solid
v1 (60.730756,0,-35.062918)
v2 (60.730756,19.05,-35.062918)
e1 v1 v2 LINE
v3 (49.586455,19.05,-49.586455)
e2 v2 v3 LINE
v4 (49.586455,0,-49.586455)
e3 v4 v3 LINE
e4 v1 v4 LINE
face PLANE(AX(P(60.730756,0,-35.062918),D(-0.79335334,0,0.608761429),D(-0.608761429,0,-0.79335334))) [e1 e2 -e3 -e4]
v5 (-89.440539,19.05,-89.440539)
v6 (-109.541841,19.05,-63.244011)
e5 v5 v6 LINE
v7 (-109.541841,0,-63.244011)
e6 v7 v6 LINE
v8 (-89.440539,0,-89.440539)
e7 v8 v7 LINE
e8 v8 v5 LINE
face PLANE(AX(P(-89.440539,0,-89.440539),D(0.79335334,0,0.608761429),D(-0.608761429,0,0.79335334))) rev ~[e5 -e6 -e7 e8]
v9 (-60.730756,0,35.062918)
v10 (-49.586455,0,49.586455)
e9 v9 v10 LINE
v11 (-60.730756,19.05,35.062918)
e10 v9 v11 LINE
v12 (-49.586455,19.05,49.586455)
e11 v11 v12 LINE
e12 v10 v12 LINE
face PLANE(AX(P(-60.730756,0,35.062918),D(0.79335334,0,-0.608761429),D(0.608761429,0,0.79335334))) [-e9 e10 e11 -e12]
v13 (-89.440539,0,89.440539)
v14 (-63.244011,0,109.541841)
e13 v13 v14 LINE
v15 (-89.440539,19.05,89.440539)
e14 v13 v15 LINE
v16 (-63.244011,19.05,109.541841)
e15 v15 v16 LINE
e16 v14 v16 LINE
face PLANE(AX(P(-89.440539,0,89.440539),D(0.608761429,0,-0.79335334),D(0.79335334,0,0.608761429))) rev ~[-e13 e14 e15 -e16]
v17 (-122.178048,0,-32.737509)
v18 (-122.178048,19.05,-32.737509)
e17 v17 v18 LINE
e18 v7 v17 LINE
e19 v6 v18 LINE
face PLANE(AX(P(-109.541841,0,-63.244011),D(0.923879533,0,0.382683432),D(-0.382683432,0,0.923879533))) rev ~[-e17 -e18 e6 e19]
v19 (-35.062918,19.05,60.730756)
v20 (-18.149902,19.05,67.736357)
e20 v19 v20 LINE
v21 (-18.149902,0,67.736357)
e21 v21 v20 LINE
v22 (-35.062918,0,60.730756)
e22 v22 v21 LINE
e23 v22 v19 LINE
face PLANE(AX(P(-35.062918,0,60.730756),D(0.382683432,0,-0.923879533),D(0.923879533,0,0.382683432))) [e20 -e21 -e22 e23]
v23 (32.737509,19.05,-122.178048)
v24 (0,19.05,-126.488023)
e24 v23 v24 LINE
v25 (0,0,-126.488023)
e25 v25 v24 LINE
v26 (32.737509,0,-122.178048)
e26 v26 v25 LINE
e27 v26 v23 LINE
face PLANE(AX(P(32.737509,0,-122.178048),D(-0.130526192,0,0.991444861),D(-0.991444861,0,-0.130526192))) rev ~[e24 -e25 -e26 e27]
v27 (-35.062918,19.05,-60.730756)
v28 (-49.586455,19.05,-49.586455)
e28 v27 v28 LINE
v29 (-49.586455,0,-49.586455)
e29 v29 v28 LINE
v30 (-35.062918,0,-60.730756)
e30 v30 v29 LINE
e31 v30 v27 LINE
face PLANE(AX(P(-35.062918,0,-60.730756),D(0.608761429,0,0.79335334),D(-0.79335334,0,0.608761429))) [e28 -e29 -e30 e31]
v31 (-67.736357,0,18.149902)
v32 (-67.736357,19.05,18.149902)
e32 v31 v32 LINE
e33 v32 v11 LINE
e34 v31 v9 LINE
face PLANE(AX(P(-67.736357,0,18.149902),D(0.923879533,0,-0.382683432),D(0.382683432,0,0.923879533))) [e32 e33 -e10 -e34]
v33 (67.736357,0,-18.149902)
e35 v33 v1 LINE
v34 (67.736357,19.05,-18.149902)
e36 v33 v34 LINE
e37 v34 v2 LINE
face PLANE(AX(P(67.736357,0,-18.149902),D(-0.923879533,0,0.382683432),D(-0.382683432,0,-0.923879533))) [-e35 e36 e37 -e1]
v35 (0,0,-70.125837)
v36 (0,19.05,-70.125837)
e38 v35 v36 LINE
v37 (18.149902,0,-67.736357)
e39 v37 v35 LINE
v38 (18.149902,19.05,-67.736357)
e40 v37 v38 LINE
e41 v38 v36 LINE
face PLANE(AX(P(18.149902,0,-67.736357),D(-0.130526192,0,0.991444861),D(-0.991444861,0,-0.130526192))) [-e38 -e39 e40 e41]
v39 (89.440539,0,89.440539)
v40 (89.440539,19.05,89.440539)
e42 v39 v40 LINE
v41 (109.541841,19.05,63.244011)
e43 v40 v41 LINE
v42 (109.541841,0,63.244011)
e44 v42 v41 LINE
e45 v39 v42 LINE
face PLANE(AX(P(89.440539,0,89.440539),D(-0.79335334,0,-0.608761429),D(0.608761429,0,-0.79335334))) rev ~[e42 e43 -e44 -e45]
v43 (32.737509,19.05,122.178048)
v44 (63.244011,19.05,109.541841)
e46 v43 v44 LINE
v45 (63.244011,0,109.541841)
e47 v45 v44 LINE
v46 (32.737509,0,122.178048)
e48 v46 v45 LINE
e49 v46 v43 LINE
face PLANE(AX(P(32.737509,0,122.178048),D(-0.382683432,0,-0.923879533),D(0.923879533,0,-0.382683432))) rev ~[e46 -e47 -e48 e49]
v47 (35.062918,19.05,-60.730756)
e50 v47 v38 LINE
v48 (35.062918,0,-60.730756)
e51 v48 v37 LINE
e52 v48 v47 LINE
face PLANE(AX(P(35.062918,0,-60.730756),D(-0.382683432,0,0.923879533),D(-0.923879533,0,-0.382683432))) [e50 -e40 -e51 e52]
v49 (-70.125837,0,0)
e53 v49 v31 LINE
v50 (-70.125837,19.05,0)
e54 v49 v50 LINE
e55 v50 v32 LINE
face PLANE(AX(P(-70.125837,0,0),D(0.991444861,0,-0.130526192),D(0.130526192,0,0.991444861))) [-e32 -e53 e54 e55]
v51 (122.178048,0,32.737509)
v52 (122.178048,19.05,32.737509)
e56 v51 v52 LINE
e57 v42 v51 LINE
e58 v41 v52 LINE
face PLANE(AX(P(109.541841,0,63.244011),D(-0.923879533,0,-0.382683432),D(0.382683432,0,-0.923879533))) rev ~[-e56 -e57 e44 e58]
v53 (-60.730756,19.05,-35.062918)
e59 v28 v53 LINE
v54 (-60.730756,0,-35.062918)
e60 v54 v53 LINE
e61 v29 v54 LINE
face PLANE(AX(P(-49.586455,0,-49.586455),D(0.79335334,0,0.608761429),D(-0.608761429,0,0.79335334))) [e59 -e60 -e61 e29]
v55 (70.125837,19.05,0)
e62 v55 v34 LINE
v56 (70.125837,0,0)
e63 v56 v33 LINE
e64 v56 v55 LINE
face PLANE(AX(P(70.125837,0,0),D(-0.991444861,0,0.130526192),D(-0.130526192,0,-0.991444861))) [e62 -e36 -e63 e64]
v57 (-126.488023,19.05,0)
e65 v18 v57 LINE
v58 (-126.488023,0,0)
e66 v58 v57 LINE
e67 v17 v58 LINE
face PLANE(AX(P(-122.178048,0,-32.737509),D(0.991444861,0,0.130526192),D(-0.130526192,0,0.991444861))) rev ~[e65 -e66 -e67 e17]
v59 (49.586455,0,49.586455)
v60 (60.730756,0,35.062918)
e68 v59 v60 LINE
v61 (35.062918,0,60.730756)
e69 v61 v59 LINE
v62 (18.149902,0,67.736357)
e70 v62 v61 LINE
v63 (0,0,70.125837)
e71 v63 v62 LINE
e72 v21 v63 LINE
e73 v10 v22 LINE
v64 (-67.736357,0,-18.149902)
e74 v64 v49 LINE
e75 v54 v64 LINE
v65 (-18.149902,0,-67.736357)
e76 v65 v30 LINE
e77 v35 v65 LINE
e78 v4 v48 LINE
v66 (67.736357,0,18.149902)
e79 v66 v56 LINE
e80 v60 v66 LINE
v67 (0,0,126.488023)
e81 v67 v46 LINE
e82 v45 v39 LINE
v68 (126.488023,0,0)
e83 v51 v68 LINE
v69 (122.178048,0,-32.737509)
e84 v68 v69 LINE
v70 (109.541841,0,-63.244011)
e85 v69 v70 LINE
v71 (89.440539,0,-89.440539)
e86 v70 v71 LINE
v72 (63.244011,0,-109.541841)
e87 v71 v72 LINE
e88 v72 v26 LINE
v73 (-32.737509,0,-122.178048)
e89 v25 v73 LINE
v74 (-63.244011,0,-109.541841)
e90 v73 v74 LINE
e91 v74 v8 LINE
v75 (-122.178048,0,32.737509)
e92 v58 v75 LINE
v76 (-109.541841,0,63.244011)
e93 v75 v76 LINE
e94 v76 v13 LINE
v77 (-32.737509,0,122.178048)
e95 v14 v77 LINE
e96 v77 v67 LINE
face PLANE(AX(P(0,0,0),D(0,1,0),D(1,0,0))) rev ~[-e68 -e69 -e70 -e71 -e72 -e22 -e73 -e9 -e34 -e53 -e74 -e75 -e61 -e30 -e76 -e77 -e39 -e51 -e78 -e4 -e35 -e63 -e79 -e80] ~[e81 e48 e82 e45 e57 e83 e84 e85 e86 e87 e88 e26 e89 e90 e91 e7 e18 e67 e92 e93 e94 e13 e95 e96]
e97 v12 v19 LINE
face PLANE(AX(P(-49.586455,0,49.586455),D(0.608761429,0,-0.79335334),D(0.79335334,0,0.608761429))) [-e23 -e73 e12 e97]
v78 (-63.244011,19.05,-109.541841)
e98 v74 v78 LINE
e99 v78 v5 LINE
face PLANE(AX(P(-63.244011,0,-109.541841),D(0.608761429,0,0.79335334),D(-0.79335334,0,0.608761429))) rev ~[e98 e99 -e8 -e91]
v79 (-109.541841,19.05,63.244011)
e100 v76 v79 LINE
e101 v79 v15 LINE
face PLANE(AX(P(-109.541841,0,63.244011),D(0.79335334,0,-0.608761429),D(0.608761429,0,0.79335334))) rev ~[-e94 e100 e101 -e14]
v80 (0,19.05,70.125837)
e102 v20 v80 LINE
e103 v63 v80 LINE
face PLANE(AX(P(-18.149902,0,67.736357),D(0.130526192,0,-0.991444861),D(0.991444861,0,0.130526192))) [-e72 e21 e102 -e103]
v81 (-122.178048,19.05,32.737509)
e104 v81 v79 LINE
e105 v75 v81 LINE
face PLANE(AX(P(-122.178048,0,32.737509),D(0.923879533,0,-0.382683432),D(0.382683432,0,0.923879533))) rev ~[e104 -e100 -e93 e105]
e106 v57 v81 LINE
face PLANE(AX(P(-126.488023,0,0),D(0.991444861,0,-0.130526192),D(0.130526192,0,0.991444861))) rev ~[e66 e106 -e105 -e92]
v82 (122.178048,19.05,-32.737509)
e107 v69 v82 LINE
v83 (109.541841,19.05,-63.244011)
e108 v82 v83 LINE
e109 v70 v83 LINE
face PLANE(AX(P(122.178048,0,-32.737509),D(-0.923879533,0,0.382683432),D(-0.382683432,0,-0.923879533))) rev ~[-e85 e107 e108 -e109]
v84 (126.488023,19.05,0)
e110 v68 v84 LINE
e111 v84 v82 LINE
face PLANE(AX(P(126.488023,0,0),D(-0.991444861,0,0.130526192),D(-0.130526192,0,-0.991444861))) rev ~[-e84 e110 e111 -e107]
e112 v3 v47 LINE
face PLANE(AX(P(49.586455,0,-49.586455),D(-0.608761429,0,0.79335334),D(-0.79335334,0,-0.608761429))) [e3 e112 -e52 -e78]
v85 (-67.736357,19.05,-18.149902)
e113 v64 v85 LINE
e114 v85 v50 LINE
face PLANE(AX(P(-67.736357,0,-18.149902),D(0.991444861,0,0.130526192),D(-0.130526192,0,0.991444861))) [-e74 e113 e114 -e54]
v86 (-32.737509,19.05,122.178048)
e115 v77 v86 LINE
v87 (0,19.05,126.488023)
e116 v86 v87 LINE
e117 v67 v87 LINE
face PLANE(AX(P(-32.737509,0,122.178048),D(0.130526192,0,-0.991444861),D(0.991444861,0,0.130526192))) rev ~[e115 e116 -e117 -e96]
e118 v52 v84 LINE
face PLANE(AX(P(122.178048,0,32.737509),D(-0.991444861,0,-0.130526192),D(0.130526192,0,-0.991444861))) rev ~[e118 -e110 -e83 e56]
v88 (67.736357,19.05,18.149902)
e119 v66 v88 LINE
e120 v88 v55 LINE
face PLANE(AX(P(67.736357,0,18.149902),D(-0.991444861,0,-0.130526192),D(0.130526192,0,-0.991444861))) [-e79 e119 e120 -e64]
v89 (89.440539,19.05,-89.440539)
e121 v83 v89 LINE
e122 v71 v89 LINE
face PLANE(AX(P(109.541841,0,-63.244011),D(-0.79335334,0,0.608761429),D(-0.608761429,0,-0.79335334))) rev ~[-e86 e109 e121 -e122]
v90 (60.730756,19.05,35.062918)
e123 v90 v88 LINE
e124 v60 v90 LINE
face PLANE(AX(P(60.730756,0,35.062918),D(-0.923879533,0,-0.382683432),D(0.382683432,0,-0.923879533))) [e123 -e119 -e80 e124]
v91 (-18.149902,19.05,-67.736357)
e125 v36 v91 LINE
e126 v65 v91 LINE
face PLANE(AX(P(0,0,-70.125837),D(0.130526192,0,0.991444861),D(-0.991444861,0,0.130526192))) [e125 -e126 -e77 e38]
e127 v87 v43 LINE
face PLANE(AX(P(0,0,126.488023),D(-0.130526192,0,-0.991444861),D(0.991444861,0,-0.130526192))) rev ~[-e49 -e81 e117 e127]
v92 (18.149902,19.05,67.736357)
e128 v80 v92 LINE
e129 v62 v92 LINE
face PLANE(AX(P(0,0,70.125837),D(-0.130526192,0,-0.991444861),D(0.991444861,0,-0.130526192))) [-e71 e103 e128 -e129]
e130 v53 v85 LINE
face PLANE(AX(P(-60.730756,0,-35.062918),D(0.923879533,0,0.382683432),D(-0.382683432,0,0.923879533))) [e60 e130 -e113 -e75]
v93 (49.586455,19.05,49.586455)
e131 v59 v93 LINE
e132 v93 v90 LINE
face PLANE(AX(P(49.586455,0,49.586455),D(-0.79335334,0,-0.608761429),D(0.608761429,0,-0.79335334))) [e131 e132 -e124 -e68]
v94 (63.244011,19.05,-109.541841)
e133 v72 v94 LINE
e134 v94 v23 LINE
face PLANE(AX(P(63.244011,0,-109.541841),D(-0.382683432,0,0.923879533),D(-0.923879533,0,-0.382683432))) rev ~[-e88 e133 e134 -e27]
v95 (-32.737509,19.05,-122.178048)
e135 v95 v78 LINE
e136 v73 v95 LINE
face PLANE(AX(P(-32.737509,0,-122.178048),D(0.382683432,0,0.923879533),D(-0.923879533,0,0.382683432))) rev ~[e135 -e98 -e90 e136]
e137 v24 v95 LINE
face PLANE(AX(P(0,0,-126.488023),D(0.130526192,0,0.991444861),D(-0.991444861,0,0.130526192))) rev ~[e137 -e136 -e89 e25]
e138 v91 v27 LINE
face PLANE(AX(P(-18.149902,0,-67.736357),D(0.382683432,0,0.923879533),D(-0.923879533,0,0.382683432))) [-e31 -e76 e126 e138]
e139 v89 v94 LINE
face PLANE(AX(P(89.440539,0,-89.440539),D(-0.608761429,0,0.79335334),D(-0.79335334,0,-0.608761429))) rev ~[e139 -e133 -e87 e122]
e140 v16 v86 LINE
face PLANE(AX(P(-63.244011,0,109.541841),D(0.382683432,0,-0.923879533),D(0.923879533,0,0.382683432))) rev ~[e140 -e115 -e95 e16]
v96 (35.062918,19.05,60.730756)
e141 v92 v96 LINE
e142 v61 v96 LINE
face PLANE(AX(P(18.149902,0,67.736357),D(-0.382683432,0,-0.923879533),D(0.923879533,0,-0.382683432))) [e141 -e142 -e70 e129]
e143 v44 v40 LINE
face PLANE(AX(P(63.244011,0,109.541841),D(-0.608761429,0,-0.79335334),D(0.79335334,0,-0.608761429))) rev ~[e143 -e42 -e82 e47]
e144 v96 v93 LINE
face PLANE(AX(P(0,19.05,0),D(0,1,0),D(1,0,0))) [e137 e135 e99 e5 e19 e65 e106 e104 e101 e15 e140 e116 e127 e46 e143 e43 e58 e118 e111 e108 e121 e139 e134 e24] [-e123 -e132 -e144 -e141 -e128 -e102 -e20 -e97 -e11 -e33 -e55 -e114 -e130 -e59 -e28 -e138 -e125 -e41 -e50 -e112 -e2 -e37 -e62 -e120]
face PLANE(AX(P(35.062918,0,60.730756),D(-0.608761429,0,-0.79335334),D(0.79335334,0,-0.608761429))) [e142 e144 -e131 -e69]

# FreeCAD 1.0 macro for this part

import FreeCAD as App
import Part
import Sketcher

V = App.Vector
Q = App.Units.Quantity


def add_polygon(sketch, points):
    """Adds a closed chain of lines whose ends are joined by coincident constraints."""
    first, n = sketch.GeometryCount, len(points)
    for a, b in zip(points, points[1:] + points[:1]):
        sketch.addGeometry(Part.LineSegment(App.Vector(*a, 0), App.Vector(*b, 0)), False)
    for i in range(n):
        sketch.addConstraint(Sketcher.Constraint("Coincident", first + i, 2, first + (i + 1) % n, 1))

doc = App.newDocument("Part")
body = doc.addObject("PartDesign::Body", "Body")

# Sketch on XZ plane
sketch1 = doc.addObject("Sketcher::SketchObject", "Sketch")
body.addObject(sketch1)
sketch1.AttachmentSupport = (doc.XZ_Plane, [""])
sketch1.MapMode = "FlatFace"
add_polygon(sketch1, [(-126.488023, 0), (-122.178048, 32.737509), (-109.541841, 63.244011), (-89.440539, 89.440539), (-63.244011, 109.541841), (-32.737509, 122.178048), (0, 126.488023), (32.737509, 122.178048), (63.244011, 109.541841), (89.440539, 89.440539), (109.541841, 63.244011), (122.178048, 32.737509), (126.488023, 0), (122.178048, -32.737509), (109.541841, -63.244011), (89.440539, -89.440539), (63.244011, -109.541841), (32.737509, -122.178048), (0, -126.488023), (-32.737509, -122.178048), (-63.244011, -109.541841), (-89.440539, -89.440539), (-109.541841, -63.244011), (-122.178048, -32.737509)])  # lines 0-23
add_polygon(sketch1, [(-67.736357, 18.149902), (-70.125837, 0), (-67.736357, -18.149902), (-60.730756, -35.062918), (-49.586455, -49.586455), (-35.062918, -60.730756), (-18.149902, -67.736357), (0, -70.125837), (18.149902, -67.736357), (35.062918, -60.730756), (49.586455, -49.586455), (60.730756, -35.062918), (67.736357, -18.149902), (70.125837, 0), (67.736357, 18.149902), (60.730756, 35.062918), (49.586455, 49.586455), (35.062918, 60.730756), (18.149902, 67.736357), (0, 70.125837), (-18.149902, 67.736357), (-35.062918, 60.730756), (-49.586455, 49.586455), (-60.730756, 35.062918)])  # lines 24-47
sketch1.addConstraint([
    Sketcher.Constraint("Symmetric", 0, 2, 12, 2, -1, 1),
    Sketcher.Constraint("Symmetric", 1, 2, 13, 2, -1, 1),
    Sketcher.Constraint("Symmetric", 2, 2, 14, 2, -1, 1),
    Sketcher.Constraint("Symmetric", 3, 2, 15, 2, -1, 1),
    Sketcher.Constraint("Symmetric", 4, 2, 16, 2, -1, 1),
    Sketcher.Constraint("Symmetric", 5, 2, 17, 2, -1, 1),
    Sketcher.Constraint("Symmetric", 6, 2, 18, 2, -1, 1),
    Sketcher.Constraint("Symmetric", 7, 2, 19, 2, -1, 1),
    Sketcher.Constraint("Symmetric", 8, 2, 20, 2, -1, 1),
    Sketcher.Constraint("Symmetric", 9, 2, 21, 2, -1, 1),
    Sketcher.Constraint("Symmetric", 10, 2, 22, 2, -1, 1),
    Sketcher.Constraint("Symmetric", 11, 2, 23, 2, -1, 1),
    Sketcher.Constraint("Symmetric", 24, 2, 36, 2, -1, 1),
    Sketcher.Constraint("Symmetric", 25, 2, 37, 2, -1, 1),
    Sketcher.Constraint("Symmetric", 26, 2, 38, 2, -1, 1),
    Sketcher.Constraint("Symmetric", 27, 2, 39, 2, -1, 1),
    Sketcher.Constraint("Symmetric", 28, 2, 40, 2, -1, 1),
    Sketcher.Constraint("Symmetric", 29, 2, 41, 2, -1, 1),
    Sketcher.Constraint("Symmetric", 30, 2, 42, 2, -1, 1),
    Sketcher.Constraint("Symmetric", 31, 2, 43, 2, -1, 1),
    Sketcher.Constraint("Symmetric", 32, 2, 44, 2, -1, 1),
    Sketcher.Constraint("Symmetric", 33, 2, 45, 2, -1, 1),
    Sketcher.Constraint("Symmetric", 34, 2, 46, 2, -1, 1),
    Sketcher.Constraint("Symmetric", 35, 2, 47, 2, -1, 1),
    Sketcher.Constraint("Symmetric", 4, 2, 6, 2, -2),
    Sketcher.Constraint("Symmetric", 3, 2, 7, 2, -2),
    Sketcher.Constraint("Symmetric", 2, 2, 8, 2, -2),
    Sketcher.Constraint("Symmetric", 1, 2, 9, 2, -2),
    Sketcher.Constraint("Symmetric", 0, 2, 10, 2, -2),
    Sketcher.Constraint("Symmetric", 29, 2, 31, 2, -2),
    Sketcher.Constraint("Symmetric", 28, 2, 32, 2, -2),
    Sketcher.Constraint("Symmetric", 27, 2, 33, 2, -2),
    Sketcher.Constraint("Symmetric", 26, 2, 34, 2, -2),
    Sketcher.Constraint("Symmetric", 25, 2, 35, 2, -2),
    Sketcher.Constraint("PointOnObject", 5, 2, -2),
    Sketcher.Constraint("PointOnObject", 11, 2, -1),
    Sketcher.Constraint("PointOnObject", 24, 2, -1),
    Sketcher.Constraint("PointOnObject", 30, 2, -2),
    Sketcher.Constraint("Perpendicular", 0, 6),
    Sketcher.Constraint("Perpendicular", 1, 7),
    Sketcher.Constraint("Perpendicular", 2, 8),
    Sketcher.Constraint("Perpendicular", 18, 24),
    Sketcher.Constraint("Parallel", 22, 26),
    Sketcher.Constraint("Parallel", 21, 27),
    Sketcher.Constraint("Parallel", 20, 28),
    Sketcher.Constraint("Parallel", 19, 29),
    Sketcher.Constraint("Perpendicular", 24, 30),
    Sketcher.Constraint("Equal", 0, 1),
    Sketcher.Constraint("Equal", 1, 2),
    Sketcher.Constraint("Equal", 2, 3),
    Sketcher.Constraint("Equal", 3, 4),
    Sketcher.Constraint("Equal", 4, 5),
    Sketcher.Constraint("Equal", 25, 26),
    Sketcher.Constraint("Equal", 26, 27),
    Sketcher.Constraint("Equal", 27, 28),
    Sketcher.Constraint("Equal", 28, 29),
    Sketcher.Constraint("Equal", 29, 30),
    Sketcher.Constraint("Distance", 0, Q("1.3 in")),
    Sketcher.Constraint("Angle", 0, Q("82.5 deg")),
    Sketcher.Constraint("Angle", 1, Q("67.5 deg")),
    Sketcher.Constraint("Angle", 2, Q("52.5 deg")),
    Sketcher.Constraint("DistanceX", 25, 2, 26, 2, Q("7.005601 mm")),
])
pad1 = doc.addObject("PartDesign::Pad", "Pad")
body.addObject(pad1)
pad1.Profile = sketch1
pad1.Length = Q("0.75 in")
pad1.Reversed = True

doc.recompute()
